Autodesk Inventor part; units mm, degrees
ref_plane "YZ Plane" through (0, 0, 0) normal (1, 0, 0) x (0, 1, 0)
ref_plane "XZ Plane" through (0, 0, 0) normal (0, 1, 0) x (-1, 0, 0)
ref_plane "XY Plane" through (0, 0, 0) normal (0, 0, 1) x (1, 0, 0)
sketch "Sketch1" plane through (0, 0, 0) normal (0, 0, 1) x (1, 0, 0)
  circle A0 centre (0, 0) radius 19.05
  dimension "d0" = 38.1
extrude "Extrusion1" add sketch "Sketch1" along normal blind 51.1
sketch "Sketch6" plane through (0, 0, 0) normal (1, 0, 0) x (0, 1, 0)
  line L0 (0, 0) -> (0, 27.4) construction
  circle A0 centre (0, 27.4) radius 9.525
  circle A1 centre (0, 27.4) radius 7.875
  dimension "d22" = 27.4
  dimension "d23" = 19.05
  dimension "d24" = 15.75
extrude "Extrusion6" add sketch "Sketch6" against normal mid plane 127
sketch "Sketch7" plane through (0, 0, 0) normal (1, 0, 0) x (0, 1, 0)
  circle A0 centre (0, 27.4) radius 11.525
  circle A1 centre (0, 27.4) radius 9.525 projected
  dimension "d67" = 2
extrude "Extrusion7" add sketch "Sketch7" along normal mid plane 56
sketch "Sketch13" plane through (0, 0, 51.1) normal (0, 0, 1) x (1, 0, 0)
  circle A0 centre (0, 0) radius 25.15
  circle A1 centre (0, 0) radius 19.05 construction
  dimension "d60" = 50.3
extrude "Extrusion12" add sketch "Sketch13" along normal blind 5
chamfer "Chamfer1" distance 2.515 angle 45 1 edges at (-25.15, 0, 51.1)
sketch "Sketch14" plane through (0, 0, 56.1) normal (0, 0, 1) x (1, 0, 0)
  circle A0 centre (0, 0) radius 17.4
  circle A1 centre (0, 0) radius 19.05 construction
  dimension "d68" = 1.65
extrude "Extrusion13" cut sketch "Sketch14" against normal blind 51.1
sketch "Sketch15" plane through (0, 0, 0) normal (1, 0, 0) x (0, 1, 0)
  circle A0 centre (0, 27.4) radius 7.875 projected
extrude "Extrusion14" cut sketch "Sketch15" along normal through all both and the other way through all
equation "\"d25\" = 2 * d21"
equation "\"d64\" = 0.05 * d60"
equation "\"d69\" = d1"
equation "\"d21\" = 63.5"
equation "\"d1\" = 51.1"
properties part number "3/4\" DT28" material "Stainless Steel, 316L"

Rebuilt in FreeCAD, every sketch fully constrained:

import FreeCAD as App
import Part
import Sketcher

V = App.Vector
Q = App.Units.Quantity


def edges_at(feature, points):
    """Names of the edges that pass closest to the given points."""
    edges = feature.Shape.Edges
    near = lambda p: min(range(len(edges)), key=lambda i: edges[i].distToShape(Part.Vertex(*p))[0])
    return sorted({f"Edge{near(p) + 1}" for p in points})

doc = App.newDocument("Part")
body = doc.addObject("PartDesign::Body", "Body")

# Sketch on XY plane
sketch1 = doc.addObject("Sketcher::SketchObject", "Sketch")
body.addObject(sketch1)
sketch1.AttachmentSupport = (doc.XY_Plane, [""])
sketch1.MapMode = "FlatFace"
sketch1.addGeometry(Part.Circle(V(0, 0, 0), V(0, 0, 1), 19.05), False)
sketch1.addConstraint(Sketcher.Constraint("Coincident", 0, 3, -1, 1))
sketch1.addConstraint(Sketcher.Constraint("Diameter", 0, Q("38.1 mm")))
pad1 = doc.addObject("PartDesign::Pad", "Pad")
body.addObject(pad1)
pad1.Profile = sketch1
pad1.Length = 51.1

# Sketch on YZ plane
sketch2 = doc.addObject("Sketcher::SketchObject", "Sketch001")
body.addObject(sketch2)
sketch2.AttachmentSupport = (doc.YZ_Plane, [""])
sketch2.MapMode = "FlatFace"
sketch2.addGeometry(Part.Circle(V(0, 27.4, 0), V(0, 0, 1), 9.525), False)
sketch2.addGeometry(Part.Circle(V(0, 27.4, 0), V(0, 0, 1), 7.875), False)
sketch2.addConstraint(Sketcher.Constraint("Coincident", 1, 3, 0, 3))
sketch2.addConstraint(Sketcher.Constraint("PointOnObject", 0, 3, -2))
sketch2.addConstraint(Sketcher.Constraint("Diameter", 0, Q("19.05 mm")))
sketch2.addConstraint(Sketcher.Constraint("Diameter", 1, Q("15.75 mm")))
sketch2.addConstraint(Sketcher.Constraint("DistanceY", -1, 1, 0, 3, Q("27.4 mm")))
pad2 = doc.addObject("PartDesign::Pad", "Pad001")
body.addObject(pad2)
pad2.Profile = sketch2
pad2.Length = 127
pad2.Midplane = True

# Sketch on YZ plane
sketch3 = doc.addObject("Sketcher::SketchObject", "Sketch002")
body.addObject(sketch3)
sketch3.AttachmentSupport = (doc.YZ_Plane, [""])
sketch3.MapMode = "FlatFace"
sketch3.addGeometry(Part.Circle(V(0, 27.4, 0), V(0, 0, 1), 11.525), False)
sketch3.addGeometry(Part.Circle(V(0, 27.4, 0), V(0, 0, 1), 9.525), False)
sketch3.addConstraint(Sketcher.Constraint("Coincident", 1, 3, 0, 3))
sketch3.addConstraint(Sketcher.Constraint("PointOnObject", 0, 3, -2))
sketch3.addConstraint(Sketcher.Constraint("Diameter", 0, Q("23.05 mm")))
sketch3.addConstraint(Sketcher.Constraint("Diameter", 1, Q("19.05 mm")))
sketch3.addConstraint(Sketcher.Constraint("DistanceY", -1, 1, 0, 3, Q("27.4 mm")))
pad3 = doc.addObject("PartDesign::Pad", "Pad002")
body.addObject(pad3)
pad3.Profile = sketch3
pad3.Length = 56
pad3.Midplane = True

# Sketch on XY plane
sketch4 = doc.addObject("Sketcher::SketchObject", "Sketch003")
body.addObject(sketch4)
sketch4.AttachmentSupport = (doc.XY_Plane, [""])
sketch4.MapMode = "FlatFace"
sketch4.AttachmentOffset = App.Placement(V(0, 0, 51.1), App.Rotation())
sketch4.addGeometry(Part.Circle(V(0, 0, 0), V(0, 0, 1), 25.15), False)
sketch4.addConstraint(Sketcher.Constraint("Coincident", 0, 3, -1, 1))
sketch4.addConstraint(Sketcher.Constraint("Diameter", 0, Q("50.3 mm")))
pad4 = doc.addObject("PartDesign::Pad", "Pad003")
body.addObject(pad4)
pad4.Profile = sketch4
pad4.Length = 5
doc.recompute()

chamfer = doc.addObject("PartDesign::Chamfer", "Chamfer")
body.addObject(chamfer)
chamfer.Base = (pad4, edges_at(pad4, [(-25.15, 0, 51.1)]))
chamfer.Size = 2.515

# Sketch on XY plane
sketch5 = doc.addObject("Sketcher::SketchObject", "Sketch004")
body.addObject(sketch5)
sketch5.AttachmentSupport = (doc.XY_Plane, [""])
sketch5.MapMode = "FlatFace"
sketch5.AttachmentOffset = App.Placement(V(0, 0, 56.1), App.Rotation())
sketch5.addGeometry(Part.Circle(V(0, 0, 0), V(0, 0, 1), 17.4), False)
sketch5.addConstraint(Sketcher.Constraint("Coincident", 0, 3, -1, 1))
sketch5.addConstraint(Sketcher.Constraint("Diameter", 0, Q("34.8 mm")))
pocket1 = doc.addObject("PartDesign::Pocket", "Pocket")
body.addObject(pocket1)
pocket1.Profile = sketch5
pocket1.Length = 51.1

# Sketch on YZ plane
sketch6 = doc.addObject("Sketcher::SketchObject", "Sketch005")
body.addObject(sketch6)
sketch6.AttachmentSupport = (doc.YZ_Plane, [""])
sketch6.MapMode = "FlatFace"
sketch6.addGeometry(Part.Circle(V(0, 27.4, 0), V(0, 0, 1), 7.875), False)
sketch6.addConstraint(Sketcher.Constraint("PointOnObject", 0, 3, -2))
sketch6.addConstraint(Sketcher.Constraint("Diameter", 0, Q("15.75 mm")))
sketch6.addConstraint(Sketcher.Constraint("DistanceY", -1, 1, 0, 3, Q("27.4 mm")))
pocket2 = doc.addObject("PartDesign::Pocket", "Pocket001")
body.addObject(pocket2)
pocket2.Profile = sketch6
pocket2.Type = "ThroughAll"
pocket2.Midplane = True

doc.recompute()
